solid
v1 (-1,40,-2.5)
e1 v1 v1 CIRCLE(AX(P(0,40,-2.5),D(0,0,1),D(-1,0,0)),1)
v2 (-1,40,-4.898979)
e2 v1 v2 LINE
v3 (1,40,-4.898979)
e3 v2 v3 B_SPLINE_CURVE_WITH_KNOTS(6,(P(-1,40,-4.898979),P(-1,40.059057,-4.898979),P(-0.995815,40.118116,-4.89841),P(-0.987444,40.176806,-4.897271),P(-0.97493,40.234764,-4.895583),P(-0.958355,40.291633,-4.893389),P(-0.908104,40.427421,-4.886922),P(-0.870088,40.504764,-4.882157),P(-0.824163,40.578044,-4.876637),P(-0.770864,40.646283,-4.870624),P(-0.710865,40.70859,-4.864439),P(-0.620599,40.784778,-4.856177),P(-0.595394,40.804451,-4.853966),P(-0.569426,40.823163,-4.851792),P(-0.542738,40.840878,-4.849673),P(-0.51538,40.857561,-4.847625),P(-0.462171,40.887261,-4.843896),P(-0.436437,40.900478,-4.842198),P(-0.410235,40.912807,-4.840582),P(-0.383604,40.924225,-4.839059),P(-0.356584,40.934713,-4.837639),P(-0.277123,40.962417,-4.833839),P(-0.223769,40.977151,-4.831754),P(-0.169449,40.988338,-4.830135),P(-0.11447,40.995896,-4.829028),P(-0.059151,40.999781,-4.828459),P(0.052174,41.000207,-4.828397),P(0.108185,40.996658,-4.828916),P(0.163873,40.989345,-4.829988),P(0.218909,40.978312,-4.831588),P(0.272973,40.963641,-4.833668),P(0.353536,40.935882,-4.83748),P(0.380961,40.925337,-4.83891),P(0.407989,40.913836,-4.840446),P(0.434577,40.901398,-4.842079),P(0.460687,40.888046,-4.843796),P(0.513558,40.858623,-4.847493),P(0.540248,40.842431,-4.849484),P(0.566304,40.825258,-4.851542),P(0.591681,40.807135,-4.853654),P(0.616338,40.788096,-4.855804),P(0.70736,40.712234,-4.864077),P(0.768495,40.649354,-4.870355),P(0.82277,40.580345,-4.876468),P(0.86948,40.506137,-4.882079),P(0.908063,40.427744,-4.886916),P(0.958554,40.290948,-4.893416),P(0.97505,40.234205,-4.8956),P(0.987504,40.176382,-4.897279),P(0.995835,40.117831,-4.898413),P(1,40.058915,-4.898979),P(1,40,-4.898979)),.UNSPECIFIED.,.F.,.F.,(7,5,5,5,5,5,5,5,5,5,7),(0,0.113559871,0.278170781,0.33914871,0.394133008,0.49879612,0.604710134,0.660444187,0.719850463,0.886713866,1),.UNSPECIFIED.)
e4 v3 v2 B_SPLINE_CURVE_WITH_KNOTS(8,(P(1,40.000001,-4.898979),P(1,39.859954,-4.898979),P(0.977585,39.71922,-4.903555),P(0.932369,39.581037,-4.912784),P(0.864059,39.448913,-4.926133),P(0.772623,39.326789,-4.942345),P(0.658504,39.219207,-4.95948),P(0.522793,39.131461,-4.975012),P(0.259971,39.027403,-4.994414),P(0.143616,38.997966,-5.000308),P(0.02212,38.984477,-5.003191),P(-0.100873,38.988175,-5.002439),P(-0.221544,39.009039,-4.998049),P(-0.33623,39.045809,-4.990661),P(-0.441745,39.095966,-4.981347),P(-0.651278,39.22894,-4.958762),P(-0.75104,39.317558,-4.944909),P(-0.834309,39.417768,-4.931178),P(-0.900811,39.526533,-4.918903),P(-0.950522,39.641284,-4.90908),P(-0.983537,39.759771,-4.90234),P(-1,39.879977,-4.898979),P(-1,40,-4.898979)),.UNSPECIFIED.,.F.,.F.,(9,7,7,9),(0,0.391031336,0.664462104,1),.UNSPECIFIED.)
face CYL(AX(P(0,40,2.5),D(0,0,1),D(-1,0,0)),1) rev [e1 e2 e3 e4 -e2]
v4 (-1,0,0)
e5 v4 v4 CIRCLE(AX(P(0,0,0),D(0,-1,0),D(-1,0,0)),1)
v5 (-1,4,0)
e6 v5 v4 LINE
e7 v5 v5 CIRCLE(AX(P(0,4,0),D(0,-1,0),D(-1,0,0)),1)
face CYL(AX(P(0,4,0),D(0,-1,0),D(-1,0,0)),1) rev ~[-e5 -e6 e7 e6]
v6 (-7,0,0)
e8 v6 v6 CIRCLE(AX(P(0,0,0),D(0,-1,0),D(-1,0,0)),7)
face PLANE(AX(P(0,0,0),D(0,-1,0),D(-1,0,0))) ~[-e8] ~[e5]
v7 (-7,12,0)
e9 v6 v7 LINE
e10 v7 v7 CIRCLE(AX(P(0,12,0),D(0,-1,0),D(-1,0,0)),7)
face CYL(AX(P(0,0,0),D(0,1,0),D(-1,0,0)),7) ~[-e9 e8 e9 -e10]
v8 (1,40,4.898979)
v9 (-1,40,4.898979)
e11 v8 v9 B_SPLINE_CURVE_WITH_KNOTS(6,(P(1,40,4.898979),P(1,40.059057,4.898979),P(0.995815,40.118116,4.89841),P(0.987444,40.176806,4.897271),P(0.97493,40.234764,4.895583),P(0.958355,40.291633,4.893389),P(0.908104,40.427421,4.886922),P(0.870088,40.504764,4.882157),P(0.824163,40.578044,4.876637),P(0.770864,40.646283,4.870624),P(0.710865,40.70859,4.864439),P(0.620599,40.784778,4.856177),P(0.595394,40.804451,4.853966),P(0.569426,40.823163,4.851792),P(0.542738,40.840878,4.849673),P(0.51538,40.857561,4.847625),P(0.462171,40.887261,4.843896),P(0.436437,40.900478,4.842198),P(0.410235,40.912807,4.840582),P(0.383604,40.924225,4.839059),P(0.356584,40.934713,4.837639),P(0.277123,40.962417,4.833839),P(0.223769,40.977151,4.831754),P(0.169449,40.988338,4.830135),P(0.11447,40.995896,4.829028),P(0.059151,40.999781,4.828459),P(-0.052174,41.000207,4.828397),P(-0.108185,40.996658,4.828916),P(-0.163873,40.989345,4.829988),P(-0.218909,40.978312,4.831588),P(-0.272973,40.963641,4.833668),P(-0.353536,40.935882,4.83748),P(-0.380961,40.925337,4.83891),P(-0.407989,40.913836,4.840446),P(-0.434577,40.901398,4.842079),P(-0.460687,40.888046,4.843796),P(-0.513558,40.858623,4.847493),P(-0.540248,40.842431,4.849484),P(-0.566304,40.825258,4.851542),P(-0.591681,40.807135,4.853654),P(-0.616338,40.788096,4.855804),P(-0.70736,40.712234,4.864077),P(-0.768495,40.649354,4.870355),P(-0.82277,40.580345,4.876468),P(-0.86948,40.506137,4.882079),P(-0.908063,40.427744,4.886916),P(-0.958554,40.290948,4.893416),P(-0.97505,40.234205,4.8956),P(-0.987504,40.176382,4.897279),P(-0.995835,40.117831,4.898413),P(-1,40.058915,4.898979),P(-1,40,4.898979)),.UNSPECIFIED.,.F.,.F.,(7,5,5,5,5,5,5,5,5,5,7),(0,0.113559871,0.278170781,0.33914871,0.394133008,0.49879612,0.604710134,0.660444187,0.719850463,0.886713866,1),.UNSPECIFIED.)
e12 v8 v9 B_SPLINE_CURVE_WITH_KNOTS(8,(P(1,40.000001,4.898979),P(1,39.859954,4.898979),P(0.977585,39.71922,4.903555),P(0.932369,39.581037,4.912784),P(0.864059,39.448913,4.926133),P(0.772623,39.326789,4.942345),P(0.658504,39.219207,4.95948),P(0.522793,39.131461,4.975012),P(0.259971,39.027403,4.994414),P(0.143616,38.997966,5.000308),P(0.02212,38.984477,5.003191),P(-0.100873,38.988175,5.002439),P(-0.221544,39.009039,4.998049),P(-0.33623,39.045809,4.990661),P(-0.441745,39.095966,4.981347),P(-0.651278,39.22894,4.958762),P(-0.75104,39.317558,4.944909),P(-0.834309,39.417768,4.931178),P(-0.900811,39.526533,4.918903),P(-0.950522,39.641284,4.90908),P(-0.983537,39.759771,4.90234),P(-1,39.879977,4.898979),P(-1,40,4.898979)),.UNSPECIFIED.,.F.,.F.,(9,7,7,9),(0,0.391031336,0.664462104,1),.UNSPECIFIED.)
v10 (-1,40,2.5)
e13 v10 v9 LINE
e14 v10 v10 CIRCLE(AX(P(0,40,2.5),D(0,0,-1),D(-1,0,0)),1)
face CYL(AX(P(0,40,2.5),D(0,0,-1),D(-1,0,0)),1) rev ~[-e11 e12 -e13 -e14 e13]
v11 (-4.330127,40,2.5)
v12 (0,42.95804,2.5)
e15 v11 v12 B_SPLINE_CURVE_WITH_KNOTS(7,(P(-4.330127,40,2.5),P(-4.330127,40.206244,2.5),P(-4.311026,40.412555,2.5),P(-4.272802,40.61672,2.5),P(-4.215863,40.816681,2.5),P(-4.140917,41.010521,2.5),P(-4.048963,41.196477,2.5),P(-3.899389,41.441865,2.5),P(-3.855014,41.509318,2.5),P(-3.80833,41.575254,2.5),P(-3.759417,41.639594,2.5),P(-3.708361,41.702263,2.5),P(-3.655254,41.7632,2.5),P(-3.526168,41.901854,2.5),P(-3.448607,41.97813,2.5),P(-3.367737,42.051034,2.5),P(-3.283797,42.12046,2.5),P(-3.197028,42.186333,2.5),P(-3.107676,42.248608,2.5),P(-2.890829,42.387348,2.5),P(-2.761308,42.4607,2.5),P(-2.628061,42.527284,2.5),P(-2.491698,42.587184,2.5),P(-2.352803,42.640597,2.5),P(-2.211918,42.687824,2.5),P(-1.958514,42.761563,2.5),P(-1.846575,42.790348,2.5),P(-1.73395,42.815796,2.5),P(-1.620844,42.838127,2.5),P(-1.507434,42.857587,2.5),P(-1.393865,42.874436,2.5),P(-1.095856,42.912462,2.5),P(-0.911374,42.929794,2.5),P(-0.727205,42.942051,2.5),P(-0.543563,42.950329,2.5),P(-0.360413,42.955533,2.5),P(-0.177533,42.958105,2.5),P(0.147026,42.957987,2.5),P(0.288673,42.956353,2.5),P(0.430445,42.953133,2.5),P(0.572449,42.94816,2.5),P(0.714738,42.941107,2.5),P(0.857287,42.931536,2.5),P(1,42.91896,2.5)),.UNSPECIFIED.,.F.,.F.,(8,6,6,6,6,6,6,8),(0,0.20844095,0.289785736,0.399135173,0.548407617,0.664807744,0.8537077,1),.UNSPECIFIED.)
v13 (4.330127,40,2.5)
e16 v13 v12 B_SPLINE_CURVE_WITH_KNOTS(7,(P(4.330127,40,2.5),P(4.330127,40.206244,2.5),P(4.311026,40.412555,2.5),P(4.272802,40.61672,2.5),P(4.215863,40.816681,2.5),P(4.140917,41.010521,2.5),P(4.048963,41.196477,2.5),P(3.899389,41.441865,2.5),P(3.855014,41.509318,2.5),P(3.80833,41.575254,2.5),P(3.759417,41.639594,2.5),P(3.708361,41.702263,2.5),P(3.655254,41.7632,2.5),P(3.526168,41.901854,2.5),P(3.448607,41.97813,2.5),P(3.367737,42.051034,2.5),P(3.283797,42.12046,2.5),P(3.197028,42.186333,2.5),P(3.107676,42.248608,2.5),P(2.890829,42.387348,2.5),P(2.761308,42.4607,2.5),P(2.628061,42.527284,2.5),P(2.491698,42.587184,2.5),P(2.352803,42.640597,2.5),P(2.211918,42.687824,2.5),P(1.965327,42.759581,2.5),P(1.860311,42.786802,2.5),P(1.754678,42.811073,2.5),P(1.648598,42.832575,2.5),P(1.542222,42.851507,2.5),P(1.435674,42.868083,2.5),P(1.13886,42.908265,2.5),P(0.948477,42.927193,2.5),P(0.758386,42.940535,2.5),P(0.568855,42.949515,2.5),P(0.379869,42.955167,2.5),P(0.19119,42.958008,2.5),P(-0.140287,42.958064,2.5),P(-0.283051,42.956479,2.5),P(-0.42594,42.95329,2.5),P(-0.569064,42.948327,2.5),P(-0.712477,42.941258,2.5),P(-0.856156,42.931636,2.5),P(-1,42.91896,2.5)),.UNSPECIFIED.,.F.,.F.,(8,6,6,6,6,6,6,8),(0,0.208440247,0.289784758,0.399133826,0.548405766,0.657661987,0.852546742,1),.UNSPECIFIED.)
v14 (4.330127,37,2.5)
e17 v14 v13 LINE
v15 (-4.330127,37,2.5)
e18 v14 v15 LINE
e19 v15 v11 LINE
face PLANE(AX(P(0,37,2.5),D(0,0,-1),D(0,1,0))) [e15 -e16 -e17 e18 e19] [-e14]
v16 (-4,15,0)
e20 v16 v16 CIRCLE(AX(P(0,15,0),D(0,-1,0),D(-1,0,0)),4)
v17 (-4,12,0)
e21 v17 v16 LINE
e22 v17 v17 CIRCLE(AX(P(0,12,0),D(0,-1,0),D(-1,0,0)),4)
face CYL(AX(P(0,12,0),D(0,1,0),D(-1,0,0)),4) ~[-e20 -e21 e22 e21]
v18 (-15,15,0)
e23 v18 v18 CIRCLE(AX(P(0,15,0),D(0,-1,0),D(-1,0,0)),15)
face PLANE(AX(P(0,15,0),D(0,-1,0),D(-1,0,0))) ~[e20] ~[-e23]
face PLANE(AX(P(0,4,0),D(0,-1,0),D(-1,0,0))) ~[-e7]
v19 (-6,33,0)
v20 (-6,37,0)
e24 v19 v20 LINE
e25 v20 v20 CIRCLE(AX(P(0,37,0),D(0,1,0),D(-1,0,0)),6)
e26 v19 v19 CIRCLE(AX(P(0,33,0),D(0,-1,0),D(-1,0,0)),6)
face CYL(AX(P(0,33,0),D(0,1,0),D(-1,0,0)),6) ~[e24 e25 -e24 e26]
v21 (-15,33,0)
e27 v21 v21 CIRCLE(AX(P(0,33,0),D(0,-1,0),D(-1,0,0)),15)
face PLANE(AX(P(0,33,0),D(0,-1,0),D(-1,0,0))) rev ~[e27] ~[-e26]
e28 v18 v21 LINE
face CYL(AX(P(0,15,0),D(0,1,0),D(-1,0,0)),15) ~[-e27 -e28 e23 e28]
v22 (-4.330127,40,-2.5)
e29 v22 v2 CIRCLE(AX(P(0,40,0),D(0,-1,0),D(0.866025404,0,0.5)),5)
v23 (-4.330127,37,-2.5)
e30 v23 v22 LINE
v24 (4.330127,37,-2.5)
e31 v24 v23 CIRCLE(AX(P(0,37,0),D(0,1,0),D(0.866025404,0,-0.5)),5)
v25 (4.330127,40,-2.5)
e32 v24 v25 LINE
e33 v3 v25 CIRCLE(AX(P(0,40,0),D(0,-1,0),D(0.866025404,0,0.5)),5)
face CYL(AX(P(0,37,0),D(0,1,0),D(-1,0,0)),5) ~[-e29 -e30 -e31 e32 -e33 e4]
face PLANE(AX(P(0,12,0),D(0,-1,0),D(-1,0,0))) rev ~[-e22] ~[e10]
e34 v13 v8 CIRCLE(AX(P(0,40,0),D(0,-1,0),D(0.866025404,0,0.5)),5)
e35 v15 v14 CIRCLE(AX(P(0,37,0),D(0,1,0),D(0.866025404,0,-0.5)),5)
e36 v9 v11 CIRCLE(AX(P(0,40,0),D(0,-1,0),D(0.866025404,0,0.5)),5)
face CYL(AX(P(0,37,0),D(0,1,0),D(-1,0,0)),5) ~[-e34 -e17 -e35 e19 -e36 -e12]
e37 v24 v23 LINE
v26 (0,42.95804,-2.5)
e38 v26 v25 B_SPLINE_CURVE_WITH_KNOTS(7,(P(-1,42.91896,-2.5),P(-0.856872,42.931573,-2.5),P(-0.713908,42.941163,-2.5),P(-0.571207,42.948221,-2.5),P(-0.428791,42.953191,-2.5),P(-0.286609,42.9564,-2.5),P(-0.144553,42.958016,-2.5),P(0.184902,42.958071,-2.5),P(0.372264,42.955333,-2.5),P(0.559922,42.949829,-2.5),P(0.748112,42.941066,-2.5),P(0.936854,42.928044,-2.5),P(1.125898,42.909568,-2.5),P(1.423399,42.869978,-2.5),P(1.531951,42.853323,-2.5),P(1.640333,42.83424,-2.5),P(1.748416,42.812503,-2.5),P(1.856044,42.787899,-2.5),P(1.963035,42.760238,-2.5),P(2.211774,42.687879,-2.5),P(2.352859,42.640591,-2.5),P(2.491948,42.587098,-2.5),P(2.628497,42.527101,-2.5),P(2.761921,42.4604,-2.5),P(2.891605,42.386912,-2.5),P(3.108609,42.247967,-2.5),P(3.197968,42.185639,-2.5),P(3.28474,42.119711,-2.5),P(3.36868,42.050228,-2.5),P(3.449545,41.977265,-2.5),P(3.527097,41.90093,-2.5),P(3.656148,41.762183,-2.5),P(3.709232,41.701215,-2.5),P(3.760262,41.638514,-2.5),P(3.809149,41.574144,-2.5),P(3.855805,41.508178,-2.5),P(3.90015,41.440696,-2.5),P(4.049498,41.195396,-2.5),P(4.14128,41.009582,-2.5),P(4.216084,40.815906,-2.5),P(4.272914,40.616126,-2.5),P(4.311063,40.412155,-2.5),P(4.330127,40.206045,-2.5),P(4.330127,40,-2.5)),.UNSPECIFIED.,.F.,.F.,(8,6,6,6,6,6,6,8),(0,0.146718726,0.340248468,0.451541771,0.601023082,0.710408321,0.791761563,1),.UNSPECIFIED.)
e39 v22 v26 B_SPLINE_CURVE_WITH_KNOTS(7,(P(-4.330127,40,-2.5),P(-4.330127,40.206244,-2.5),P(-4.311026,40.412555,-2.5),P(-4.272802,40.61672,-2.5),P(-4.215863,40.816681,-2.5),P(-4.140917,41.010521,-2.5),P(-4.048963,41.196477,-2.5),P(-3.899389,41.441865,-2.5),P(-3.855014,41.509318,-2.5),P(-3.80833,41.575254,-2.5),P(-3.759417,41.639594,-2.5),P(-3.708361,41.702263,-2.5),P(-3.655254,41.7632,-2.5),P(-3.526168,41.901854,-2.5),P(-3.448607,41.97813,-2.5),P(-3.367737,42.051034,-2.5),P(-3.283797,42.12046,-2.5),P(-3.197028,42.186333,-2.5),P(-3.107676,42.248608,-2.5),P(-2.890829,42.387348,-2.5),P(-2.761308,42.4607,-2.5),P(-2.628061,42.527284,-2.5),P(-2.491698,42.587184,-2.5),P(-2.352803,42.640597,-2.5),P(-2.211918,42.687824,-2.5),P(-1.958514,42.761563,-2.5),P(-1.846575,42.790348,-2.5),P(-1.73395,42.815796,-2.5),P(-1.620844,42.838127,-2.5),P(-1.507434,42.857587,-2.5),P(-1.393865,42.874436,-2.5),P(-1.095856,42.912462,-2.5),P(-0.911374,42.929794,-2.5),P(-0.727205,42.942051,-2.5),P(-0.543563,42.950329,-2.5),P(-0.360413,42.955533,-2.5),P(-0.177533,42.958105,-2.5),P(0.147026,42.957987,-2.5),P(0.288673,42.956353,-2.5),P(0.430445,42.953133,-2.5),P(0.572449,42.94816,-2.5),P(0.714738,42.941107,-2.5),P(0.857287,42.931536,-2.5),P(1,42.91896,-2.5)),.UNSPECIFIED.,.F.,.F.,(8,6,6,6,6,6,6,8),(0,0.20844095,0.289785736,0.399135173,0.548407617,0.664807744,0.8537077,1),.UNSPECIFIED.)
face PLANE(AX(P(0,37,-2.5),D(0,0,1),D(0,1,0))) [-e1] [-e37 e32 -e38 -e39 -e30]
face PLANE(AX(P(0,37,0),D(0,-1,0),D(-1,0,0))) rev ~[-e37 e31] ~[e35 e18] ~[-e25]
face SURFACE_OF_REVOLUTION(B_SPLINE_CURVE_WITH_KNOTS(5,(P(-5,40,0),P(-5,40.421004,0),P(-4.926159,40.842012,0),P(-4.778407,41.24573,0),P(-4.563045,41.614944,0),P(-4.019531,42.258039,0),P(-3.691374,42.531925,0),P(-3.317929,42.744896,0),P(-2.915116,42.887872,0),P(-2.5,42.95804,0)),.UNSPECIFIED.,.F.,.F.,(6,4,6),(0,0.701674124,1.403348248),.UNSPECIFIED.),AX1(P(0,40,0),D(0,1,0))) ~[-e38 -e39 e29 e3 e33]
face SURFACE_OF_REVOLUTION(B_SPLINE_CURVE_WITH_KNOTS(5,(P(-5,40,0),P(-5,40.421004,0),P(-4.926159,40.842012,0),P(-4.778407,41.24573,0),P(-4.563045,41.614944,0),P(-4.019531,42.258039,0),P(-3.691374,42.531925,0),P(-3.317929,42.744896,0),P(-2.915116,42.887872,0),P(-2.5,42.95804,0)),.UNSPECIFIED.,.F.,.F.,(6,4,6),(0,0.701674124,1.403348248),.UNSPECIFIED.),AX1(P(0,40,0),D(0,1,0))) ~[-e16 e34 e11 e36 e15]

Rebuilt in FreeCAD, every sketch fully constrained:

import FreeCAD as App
import Part
import Sketcher


def edges_at(feature, points):
    """Names of the edges that pass closest to the given points."""
    edges = feature.Shape.Edges
    near = lambda p: min(range(len(edges)), key=lambda i: edges[i].distToShape(Part.Vertex(*p))[0])
    return sorted({f"Edge{near(p) + 1}" for p in points})


def add_polygon(sketch, points):
    """Adds a closed chain of lines whose ends are joined by coincident constraints."""
    first, n = sketch.GeometryCount, len(points)
    for a, b in zip(points, points[1:] + points[:1]):
        sketch.addGeometry(Part.LineSegment(App.Vector(*a, 0), App.Vector(*b, 0)), False)
    for i in range(n):
        sketch.addConstraint(Sketcher.Constraint("Coincident", first + i, 2, first + (i + 1) % n, 1))

doc = App.newDocument("Part")
body = doc.addObject("PartDesign::Body", "Body")

# Sketch on XY plane
sketch1 = doc.addObject("Sketcher::SketchObject", "Sketch")
body.addObject(sketch1)
sketch1.AttachmentSupport = (doc.XY_Plane, [""])
sketch1.MapMode = "FlatFace"
add_polygon(sketch1, [(-4, 15), (-4, 12), (-7, 12), (-7, 0), (-1, 0), (-1, 4), (0, 4), (0, 43), (-5, 43), (-5, 37), (-6, 37), (-6, 33), (-15, 33), (-15, 15)])  # lines 0-13
sketch1.addConstraint([
    Sketcher.Constraint("Vertical", 0),
    Sketcher.Constraint("Horizontal", 1),
    Sketcher.Constraint("Vertical", 2),
    Sketcher.Constraint("Horizontal", 3),
    Sketcher.Constraint("Vertical", 4),
    Sketcher.Constraint("Horizontal", 5),
    Sketcher.Constraint("Vertical", 6),
    Sketcher.Constraint("Horizontal", 7),
    Sketcher.Constraint("Vertical", 8),
    Sketcher.Constraint("Horizontal", 9),
    Sketcher.Constraint("Vertical", 10),
    Sketcher.Constraint("Horizontal", 11),
    Sketcher.Constraint("Vertical", 12),
    Sketcher.Constraint("Horizontal", 13),
    Sketcher.Constraint("PointOnObject", 2, 2, -1),
    Sketcher.Constraint("PointOnObject", 5, 2, -2),
    Sketcher.Constraint("Equal", 5, 9),
    Sketcher.Constraint("Equal", 1, 0),
    Sketcher.Constraint("Equal", 3, 8),
    Sketcher.Constraint("Equal", 4, 10),
    Sketcher.Constraint("DistanceX", 1, 2, 1, 1, 3.0),
    Sketcher.Constraint("DistanceX", 3, 1, 3, 2, 6.0),
    Sketcher.Constraint("DistanceX", 5, 1, 5, 2, 1.0),
    Sketcher.Constraint("DistanceX", 7, 2, 7, 1, 5.0),
    Sketcher.Constraint("DistanceX", 11, 2, 11, 1, 9.0),
    Sketcher.Constraint("DistanceY", 2, 2, 2, 1, 12.0),
    Sketcher.Constraint("DistanceY", 4, 1, 4, 2, 4.0),
    Sketcher.Constraint("DistanceY", 6, 1, 6, 2, 39.0),
])
revolution = doc.addObject("PartDesign::Revolution", "Revolution")
body.addObject(revolution)
revolution.Profile = sketch1
revolution.ReferenceAxis = (sketch1, ["V_Axis"])
revolution.Angle = 360
doc.recompute()

fillet = doc.addObject("PartDesign::Fillet", "Fillet")
body.addObject(fillet)
fillet.Base = (revolution, edges_at(revolution, [(5, 43, 0)]))
fillet.Radius = 3

# Sketch on YZ plane
sketch2 = doc.addObject("Sketcher::SketchObject", "Sketch001")
body.addObject(sketch2)
sketch2.AttachmentSupport = (doc.YZ_Plane, [""])
sketch2.MapMode = "FlatFace"
add_polygon(sketch2, [(43, 2), (37, 2), (37, -2), (43, -2)])  # lines 0-3
sketch2.addConstraint([
    Sketcher.Constraint("Horizontal", 0),
    Sketcher.Constraint("Vertical", 1),
    Sketcher.Constraint("Horizontal", 2),
    Sketcher.Constraint("Vertical", 3),
    Sketcher.Constraint("DistanceX", 0, 2, 0, 1, 6.0),
    Sketcher.Constraint("DistanceY", 1, 2, 1, 1, 5.0),
    Sketcher.Constraint("DistanceX", -1, 1, 0, 2, 37.0),
    Sketcher.Constraint("DistanceY", -1, 1, 0, 2, 2.5),
])
pocket1 = doc.addObject("PartDesign::Pocket", "Pocket")
body.addObject(pocket1)
pocket1.Profile = sketch2
pocket1.Type = "ThroughAll"
pocket1.Midplane = True

# Sketch on XY plane
sketch3 = doc.addObject("Sketcher::SketchObject", "Sketch002")
body.addObject(sketch3)
sketch3.AttachmentSupport = (doc.XY_Plane, [""])
sketch3.MapMode = "FlatFace"
sketch3.AttachmentOffset = App.Placement(App.Vector(0, 0, 2.5), App.Rotation())
sketch3.addGeometry(Part.Circle(App.Vector(0, 40, 0), App.Vector(0, 0, 1), 1), False)
sketch3.addConstraint([
    Sketcher.Constraint("PointOnObject", 0, 3, -2),
    Sketcher.Constraint("Diameter", 0, 2.0),
    Sketcher.Constraint("DistanceY", -1, 1, 0, 3, 40.0),
])
pocket2 = doc.addObject("PartDesign::Pocket", "Pocket001")
body.addObject(pocket2)
pocket2.Profile = sketch3
pocket2.Type = "ThroughAll"
pocket2.Midplane = True

doc.recompute()
